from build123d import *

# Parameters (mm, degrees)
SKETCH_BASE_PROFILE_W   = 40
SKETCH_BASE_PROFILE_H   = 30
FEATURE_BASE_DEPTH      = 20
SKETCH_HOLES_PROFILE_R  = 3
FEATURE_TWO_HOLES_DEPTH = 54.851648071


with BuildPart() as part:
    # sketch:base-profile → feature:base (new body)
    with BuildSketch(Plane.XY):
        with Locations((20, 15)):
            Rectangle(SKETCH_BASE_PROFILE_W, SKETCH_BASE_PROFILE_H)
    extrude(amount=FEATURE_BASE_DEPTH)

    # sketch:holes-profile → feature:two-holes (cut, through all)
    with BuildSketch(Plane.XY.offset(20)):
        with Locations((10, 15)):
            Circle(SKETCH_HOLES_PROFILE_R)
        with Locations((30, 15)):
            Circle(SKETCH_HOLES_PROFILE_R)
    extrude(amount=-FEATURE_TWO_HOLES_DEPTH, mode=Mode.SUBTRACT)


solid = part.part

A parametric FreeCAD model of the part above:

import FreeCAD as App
import Part
import Sketcher
from FreeCAD import Vector


def add_polygon(sketch, points):
    """Adds a closed chain of lines whose ends are joined by coincident constraints."""
    first, n = sketch.GeometryCount, len(points)
    for a, b in zip(points, points[1:] + points[:1]):
        sketch.addGeometry(Part.LineSegment(App.Vector(*a, 0), App.Vector(*b, 0)), False)
    for i in range(n):
        sketch.addConstraint(Sketcher.Constraint("Coincident", first + i, 2, first + (i + 1) % n, 1))

doc = App.newDocument("Part")
body = doc.addObject("PartDesign::Body", "Body")

# Sketch on XY plane
sketch1 = body.newObject("Sketcher::SketchObject", "Sketch")
sketch1.AttachmentSupport = (doc.getObject("XY_Plane"), [""])
sketch1.MapMode = "FlatFace"
add_polygon(sketch1, [(0, 30), (0, 0), (40, 0), (40, 30)])  # lines 0-3
sketch1.addConstraint([
    Sketcher.Constraint("Vertical", 0),
    Sketcher.Constraint("Horizontal", 1),
    Sketcher.Constraint("Vertical", 2),
    Sketcher.Constraint("Horizontal", 3),
    Sketcher.Constraint("Coincident", 0, 2, -1, 1),
    Sketcher.Constraint("DistanceX", 1, 1, 1, 2, 40.0),
    Sketcher.Constraint("DistanceY", 0, 2, 0, 1, 30.0),
])
pad1 = body.newObject("PartDesign::Pad", "Pad")
pad1.Profile = sketch1
pad1.Length = 20

# Sketch on XY plane
sketch2 = body.newObject("Sketcher::SketchObject", "Sketch001")
sketch2.AttachmentSupport = (doc.getObject("XY_Plane"), [""])
sketch2.MapMode = "FlatFace"
sketch2.AttachmentOffset = App.Placement(Vector(0, 0, 20), App.Rotation())
sketch2.addGeometry([
    Part.Circle(Vector(10, 15, 0), Vector(0, 0, 1), 3),
    Part.Circle(Vector(30, 15, 0), Vector(0, 0, 1), 3),
], False)
sketch2.addConstraint([
    Sketcher.Constraint("Equal", 0, 1),
    Sketcher.Constraint("Horizontal", 0, 3, 1, 3),
    Sketcher.Constraint("Diameter", 0, 6.0),
    Sketcher.Constraint("DistanceX", -1, 1, 0, 3, 10.0),
    Sketcher.Constraint("DistanceY", -1, 1, 0, 3, 15.0),
    Sketcher.Constraint("DistanceX", -1, 1, 1, 3, 30.0),
])
pocket1 = body.newObject("PartDesign::Pocket", "Pocket")
pocket1.Profile = sketch2
pocket1.Type = "ThroughAll"

doc.recompute()
